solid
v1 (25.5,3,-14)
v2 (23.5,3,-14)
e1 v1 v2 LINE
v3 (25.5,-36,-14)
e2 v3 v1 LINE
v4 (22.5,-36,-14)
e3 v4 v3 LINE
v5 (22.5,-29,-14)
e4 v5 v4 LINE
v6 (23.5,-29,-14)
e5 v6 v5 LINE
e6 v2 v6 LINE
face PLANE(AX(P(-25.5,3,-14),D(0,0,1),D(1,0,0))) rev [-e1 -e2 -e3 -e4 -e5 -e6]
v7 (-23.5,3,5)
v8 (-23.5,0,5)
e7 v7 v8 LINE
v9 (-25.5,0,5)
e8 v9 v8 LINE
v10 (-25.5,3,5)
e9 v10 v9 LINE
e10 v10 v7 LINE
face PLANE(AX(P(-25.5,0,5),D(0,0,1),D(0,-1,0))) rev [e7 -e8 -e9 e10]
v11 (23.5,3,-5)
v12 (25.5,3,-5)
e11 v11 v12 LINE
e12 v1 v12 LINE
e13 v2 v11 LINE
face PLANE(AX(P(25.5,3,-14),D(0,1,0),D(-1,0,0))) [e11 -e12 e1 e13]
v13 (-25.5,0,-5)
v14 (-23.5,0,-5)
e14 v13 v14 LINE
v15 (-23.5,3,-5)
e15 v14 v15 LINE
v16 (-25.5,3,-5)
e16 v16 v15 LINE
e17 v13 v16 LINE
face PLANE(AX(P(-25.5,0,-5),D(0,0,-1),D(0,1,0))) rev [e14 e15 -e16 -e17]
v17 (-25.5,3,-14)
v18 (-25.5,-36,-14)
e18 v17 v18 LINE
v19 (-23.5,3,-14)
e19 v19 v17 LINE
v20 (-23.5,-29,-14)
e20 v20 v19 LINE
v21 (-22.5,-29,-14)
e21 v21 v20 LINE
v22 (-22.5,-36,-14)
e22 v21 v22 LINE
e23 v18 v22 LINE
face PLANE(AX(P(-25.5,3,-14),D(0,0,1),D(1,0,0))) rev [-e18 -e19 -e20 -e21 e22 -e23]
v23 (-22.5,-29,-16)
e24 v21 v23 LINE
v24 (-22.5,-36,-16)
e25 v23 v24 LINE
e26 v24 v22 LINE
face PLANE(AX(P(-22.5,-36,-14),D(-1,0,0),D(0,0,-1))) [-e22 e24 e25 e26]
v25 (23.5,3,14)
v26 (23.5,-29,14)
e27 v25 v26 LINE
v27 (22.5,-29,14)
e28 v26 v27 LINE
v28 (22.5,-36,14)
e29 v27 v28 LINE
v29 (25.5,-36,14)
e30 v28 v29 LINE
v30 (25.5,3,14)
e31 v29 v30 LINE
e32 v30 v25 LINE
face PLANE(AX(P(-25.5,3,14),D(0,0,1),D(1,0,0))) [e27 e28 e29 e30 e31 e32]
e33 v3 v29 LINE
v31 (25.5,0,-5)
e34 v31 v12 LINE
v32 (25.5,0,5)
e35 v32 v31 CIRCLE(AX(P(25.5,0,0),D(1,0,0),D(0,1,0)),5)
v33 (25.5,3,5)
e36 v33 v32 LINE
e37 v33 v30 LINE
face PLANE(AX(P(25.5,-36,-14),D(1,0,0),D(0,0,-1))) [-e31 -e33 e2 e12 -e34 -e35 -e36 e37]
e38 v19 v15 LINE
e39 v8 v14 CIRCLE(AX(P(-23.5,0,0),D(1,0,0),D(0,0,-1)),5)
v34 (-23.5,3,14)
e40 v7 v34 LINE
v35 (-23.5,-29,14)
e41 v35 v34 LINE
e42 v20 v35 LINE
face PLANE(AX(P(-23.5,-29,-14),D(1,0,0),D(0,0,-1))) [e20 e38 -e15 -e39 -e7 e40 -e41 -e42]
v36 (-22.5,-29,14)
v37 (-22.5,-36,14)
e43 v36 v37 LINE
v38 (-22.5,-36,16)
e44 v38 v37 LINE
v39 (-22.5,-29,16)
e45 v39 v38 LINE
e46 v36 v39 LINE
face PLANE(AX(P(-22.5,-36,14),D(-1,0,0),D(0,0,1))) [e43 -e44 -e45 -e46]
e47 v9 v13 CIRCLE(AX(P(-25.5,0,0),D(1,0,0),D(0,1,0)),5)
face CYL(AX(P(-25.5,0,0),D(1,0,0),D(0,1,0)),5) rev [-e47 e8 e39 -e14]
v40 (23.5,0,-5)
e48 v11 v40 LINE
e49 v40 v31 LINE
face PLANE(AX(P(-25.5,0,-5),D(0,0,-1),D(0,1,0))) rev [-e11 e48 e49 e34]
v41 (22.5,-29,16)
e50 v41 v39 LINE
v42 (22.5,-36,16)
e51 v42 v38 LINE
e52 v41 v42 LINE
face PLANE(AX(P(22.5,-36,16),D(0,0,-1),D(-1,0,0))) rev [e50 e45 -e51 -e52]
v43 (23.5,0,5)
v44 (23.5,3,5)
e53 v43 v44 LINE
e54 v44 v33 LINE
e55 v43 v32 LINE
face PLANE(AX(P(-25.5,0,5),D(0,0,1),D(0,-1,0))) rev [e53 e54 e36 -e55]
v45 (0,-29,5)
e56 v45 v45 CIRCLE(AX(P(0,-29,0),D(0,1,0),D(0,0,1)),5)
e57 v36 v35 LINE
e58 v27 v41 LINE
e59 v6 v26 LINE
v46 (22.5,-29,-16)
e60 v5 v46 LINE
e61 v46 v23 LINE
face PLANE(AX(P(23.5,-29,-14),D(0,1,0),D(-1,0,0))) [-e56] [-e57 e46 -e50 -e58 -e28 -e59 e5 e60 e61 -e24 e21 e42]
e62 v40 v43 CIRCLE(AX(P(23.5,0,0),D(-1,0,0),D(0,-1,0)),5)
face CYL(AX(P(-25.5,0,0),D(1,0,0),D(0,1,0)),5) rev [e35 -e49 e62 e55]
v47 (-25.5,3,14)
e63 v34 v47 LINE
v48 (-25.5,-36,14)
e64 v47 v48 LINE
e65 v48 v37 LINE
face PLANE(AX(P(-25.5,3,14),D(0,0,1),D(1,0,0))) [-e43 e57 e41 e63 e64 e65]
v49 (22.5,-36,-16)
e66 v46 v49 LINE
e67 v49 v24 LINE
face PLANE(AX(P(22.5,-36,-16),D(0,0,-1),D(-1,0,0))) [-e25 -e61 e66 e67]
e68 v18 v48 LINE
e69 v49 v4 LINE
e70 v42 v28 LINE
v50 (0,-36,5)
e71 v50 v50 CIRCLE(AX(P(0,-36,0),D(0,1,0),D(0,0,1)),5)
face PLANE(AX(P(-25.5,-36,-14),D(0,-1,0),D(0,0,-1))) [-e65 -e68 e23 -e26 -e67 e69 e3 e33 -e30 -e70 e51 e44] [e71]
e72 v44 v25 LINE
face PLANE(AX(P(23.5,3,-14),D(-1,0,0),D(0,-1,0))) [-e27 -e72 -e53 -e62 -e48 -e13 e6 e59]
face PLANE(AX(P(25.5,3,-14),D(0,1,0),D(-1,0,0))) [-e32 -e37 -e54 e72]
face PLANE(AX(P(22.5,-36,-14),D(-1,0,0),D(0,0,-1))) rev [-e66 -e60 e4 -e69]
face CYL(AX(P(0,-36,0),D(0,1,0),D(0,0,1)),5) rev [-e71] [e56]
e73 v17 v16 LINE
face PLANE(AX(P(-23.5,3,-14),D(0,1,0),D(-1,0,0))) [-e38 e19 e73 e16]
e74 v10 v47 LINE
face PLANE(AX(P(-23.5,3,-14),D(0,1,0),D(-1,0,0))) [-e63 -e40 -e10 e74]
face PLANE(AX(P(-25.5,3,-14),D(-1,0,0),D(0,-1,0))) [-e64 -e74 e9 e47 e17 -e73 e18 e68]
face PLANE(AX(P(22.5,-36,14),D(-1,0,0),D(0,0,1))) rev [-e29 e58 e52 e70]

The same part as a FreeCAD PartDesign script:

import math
import FreeCAD as App
import Part
import Sketcher

V = App.Vector
Q = App.Units.Quantity


def add_polygon(sketch, points):
    """Adds a closed chain of lines whose ends are joined by coincident constraints."""
    first, n = sketch.GeometryCount, len(points)
    for a, b in zip(points, points[1:] + points[:1]):
        sketch.addGeometry(Part.LineSegment(App.Vector(*a, 0), App.Vector(*b, 0)), False)
    for i in range(n):
        sketch.addConstraint(Sketcher.Constraint("Coincident", first + i, 2, first + (i + 1) % n, 1))

doc = App.newDocument("Part")
body = doc.addObject("PartDesign::Body", "Body")

# Sketch on XY plane
sketch1 = body.newObject("Sketcher::SketchObject", "Sketch")
sketch1.AttachmentSupport = (doc.getObject("XY_Plane"), [""])
sketch1.MapMode = "FlatFace"
add_polygon(sketch1, [(-25.5, 3), (-25.5, -36), (25.5, -36), (25.5, 3), (23.5, 3), (23.5, -29), (-23.5, -29), (-23.5, 3)])  # lines 0-7
sketch1.addConstraint(Sketcher.Constraint("Vertical", 0))
sketch1.addConstraint(Sketcher.Constraint("Horizontal", 1))
sketch1.addConstraint(Sketcher.Constraint("Vertical", 2))
sketch1.addConstraint(Sketcher.Constraint("Horizontal", 3))
sketch1.addConstraint(Sketcher.Constraint("Vertical", 4))
sketch1.addConstraint(Sketcher.Constraint("Horizontal", 5))
sketch1.addConstraint(Sketcher.Constraint("Vertical", 6))
sketch1.addConstraint(Sketcher.Constraint("Horizontal", 7))
sketch1.addConstraint(Sketcher.Constraint("Symmetric", 3, 2, 6, 2, -2))
sketch1.addConstraint(Sketcher.Constraint("Equal", 3, 7))
sketch1.addConstraint(Sketcher.Constraint("DistanceX", 1, 1, 1, 2, Q("51 mm")))
sketch1.addConstraint(Sketcher.Constraint("DistanceX", 3, 2, 3, 1, Q("2 mm")))
sketch1.addConstraint(Sketcher.Constraint("DistanceY", 0, 2, 0, 1, Q("39 mm")))
sketch1.addConstraint(Sketcher.Constraint("DistanceY", 4, 2, 4, 1, Q("32 mm")))
sketch1.addConstraint(Sketcher.Constraint("DistanceY", 0, 2, -1, 1, Q("36 mm")))
pad1 = body.newObject("PartDesign::Pad", "Pad")
pad1.Profile = sketch1
pad1.Length = 28
pad1.Midplane = True

# Sketch on YZ plane
sketch2 = body.newObject("Sketcher::SketchObject", "Sketch001")
sketch2.AttachmentSupport = (doc.getObject("YZ_Plane"), [""])
sketch2.MapMode = "FlatFace"
add_polygon(sketch2, [(-36, 16), (-36, 14), (-33, 14), (-33, 13), (-29, 13), (-29, 16)])  # lines 0-5
sketch2.addConstraint(Sketcher.Constraint("Vertical", 0))
sketch2.addConstraint(Sketcher.Constraint("Horizontal", 1))
sketch2.addConstraint(Sketcher.Constraint("Vertical", 2))
sketch2.addConstraint(Sketcher.Constraint("Horizontal", 3))
sketch2.addConstraint(Sketcher.Constraint("Vertical", 4))
sketch2.addConstraint(Sketcher.Constraint("Horizontal", 5))
sketch2.addConstraint(Sketcher.Constraint("Equal", 1, 4))
sketch2.addConstraint(Sketcher.Constraint("DistanceX", 1, 1, 1, 2, Q("3 mm")))
sketch2.addConstraint(Sketcher.Constraint("DistanceX", 3, 1, 3, 2, Q("4 mm")))
sketch2.addConstraint(Sketcher.Constraint("DistanceY", 0, 2, 0, 1, Q("2 mm")))
sketch2.addConstraint(Sketcher.Constraint("DistanceX", 0, 2, -1, 1, Q("36 mm")))
sketch2.addConstraint(Sketcher.Constraint("DistanceY", -1, 1, 0, 2, Q("14 mm")))
pad2 = body.newObject("PartDesign::Pad", "Pad001")
pad2.Profile = sketch2
pad2.Length = 45
pad2.Midplane = True
doc.recompute()

mirrored = body.newObject("PartDesign::Mirrored", "Mirrored")
mirrored.Originals = [pad2]
mirrored.MirrorPlane = (doc.getObject("XY_Plane"), [""])
body.Tip = mirrored

# Sketch on YZ plane
sketch3 = body.newObject("Sketcher::SketchObject", "Sketch002")
sketch3.AttachmentSupport = (doc.getObject("YZ_Plane"), [""])
sketch3.MapMode = "FlatFace"
sketch3.AttachmentOffset = App.Placement(V(0, 0, 25.5), App.Rotation())
sketch3.addGeometry(Part.LineSegment(V(3, 5, 0), V(0, 5, 0)), False)
sketch3.addGeometry(Part.ArcOfCircle(Part.Circle(V(0, 0, 0), V(0, 0, 1), 5), math.radians(90), math.radians(270)), False)
sketch3.addGeometry(Part.LineSegment(V(0, -5, 0), V(3, -5, 0)), False)
sketch3.addGeometry(Part.LineSegment(V(3, -5, 0), V(3, 5, 0)), False)
sketch3.addConstraint(Sketcher.Constraint("Tangent", 0, 2, 1, 1))
sketch3.addConstraint(Sketcher.Constraint("Tangent", 1, 2, 2, 1))
sketch3.addConstraint(Sketcher.Constraint("Coincident", 2, 2, 3, 1))
sketch3.addConstraint(Sketcher.Constraint("Coincident", 3, 2, 0, 1))
sketch3.addConstraint(Sketcher.Constraint("Horizontal", 0))
sketch3.addConstraint(Sketcher.Constraint("Horizontal", 2))
sketch3.addConstraint(Sketcher.Constraint("Vertical", 3))
sketch3.addConstraint(Sketcher.Constraint("Coincident", 1, 3, -1, 1))
sketch3.addConstraint(Sketcher.Constraint("Radius", 1, Q("5 mm")))
sketch3.addConstraint(Sketcher.Constraint("DistanceX", 0, 2, 0, 1, Q("3 mm")))
pocket1 = body.newObject("PartDesign::Pocket", "Pocket")
pocket1.Profile = sketch3
pocket1.Type = "ThroughAll"

# Sketch on XZ plane
sketch4 = body.newObject("Sketcher::SketchObject", "Sketch003")
sketch4.AttachmentSupport = (doc.getObject("XZ_Plane"), [""])
sketch4.MapMode = "FlatFace"
sketch4.AttachmentOffset = App.Placement(V(0, 0, 29), App.Rotation())
sketch4.addGeometry(Part.Circle(V(0, 0, 0), V(0, 0, 1), 5), False)
sketch4.addConstraint(Sketcher.Constraint("Coincident", 0, 3, -1, 1))
sketch4.addConstraint(Sketcher.Constraint("Diameter", 0, Q("10 mm")))
pocket2 = body.newObject("PartDesign::Pocket", "Pocket001")
pocket2.Profile = sketch4
pocket2.Type = "ThroughAll"
pocket2.Reversed = True

doc.recompute()
